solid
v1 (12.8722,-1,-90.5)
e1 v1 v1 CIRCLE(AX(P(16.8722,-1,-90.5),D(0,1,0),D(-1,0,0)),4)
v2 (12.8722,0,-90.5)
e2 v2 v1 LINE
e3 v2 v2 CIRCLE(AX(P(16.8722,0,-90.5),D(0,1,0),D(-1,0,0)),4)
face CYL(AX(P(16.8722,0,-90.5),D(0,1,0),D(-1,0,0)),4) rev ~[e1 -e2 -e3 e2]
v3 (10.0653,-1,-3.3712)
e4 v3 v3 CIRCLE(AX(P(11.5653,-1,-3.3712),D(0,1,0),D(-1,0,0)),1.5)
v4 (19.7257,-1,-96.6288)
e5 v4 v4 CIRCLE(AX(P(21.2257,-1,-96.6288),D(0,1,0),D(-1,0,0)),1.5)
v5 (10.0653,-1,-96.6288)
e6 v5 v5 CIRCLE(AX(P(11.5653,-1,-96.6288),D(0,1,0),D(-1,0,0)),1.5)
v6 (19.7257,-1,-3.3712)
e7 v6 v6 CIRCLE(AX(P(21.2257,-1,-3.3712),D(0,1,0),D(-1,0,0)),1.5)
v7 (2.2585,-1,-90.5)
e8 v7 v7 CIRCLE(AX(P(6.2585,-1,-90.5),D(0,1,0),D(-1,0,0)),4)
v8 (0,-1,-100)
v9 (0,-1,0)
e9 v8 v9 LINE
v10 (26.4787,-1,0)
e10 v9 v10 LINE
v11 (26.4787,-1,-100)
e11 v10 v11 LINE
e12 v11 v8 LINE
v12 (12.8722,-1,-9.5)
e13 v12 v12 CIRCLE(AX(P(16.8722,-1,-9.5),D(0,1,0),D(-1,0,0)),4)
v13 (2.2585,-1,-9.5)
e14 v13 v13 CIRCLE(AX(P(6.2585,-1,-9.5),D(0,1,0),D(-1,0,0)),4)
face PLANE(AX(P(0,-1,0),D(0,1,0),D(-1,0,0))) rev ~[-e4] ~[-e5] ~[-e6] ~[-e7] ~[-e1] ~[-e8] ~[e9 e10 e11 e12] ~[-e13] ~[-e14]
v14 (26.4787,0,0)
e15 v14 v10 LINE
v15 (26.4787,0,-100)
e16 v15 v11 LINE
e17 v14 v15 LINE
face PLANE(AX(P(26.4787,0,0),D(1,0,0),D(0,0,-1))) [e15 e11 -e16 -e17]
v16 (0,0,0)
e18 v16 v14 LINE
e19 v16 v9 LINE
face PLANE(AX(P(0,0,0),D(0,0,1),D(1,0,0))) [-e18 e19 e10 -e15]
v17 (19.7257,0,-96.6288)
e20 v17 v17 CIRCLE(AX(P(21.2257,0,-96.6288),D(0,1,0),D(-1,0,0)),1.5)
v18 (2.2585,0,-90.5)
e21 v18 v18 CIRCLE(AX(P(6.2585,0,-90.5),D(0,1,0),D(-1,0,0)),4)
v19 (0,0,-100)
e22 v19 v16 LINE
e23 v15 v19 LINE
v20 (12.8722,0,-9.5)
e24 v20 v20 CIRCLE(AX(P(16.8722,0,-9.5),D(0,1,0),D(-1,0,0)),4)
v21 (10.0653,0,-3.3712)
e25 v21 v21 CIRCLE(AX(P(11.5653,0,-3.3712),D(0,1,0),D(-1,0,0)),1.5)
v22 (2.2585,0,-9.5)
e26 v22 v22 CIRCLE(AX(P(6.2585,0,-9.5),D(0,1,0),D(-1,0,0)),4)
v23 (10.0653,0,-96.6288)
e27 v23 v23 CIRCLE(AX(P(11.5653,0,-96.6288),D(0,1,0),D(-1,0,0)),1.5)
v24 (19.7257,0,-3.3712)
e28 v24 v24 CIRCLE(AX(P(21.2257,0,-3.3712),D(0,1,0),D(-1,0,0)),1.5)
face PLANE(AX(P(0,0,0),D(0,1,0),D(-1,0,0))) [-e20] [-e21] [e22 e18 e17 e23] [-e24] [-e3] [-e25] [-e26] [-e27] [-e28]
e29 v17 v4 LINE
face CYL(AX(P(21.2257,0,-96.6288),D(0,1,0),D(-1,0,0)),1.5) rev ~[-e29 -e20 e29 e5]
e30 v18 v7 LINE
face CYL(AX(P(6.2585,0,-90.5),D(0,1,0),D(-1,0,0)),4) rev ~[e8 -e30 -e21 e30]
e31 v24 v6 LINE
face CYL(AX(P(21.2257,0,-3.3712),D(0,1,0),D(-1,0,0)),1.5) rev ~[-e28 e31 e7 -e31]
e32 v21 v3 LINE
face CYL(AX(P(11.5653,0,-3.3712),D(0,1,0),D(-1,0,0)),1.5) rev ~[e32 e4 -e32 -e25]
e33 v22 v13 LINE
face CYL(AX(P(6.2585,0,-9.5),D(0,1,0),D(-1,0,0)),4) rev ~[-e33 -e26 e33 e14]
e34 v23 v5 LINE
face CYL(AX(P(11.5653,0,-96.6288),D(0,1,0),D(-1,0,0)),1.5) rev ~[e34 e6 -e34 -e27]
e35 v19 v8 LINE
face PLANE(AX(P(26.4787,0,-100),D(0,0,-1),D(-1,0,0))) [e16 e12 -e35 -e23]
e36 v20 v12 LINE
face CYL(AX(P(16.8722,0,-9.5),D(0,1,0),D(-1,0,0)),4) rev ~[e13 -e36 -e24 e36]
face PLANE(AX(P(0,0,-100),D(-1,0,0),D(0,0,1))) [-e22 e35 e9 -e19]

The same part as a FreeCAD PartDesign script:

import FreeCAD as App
import Part
import Sketcher
from FreeCAD import Vector


def add_polygon(sketch, points):
    """Adds a closed chain of lines whose ends are joined by coincident constraints."""
    first, n = sketch.GeometryCount, len(points)
    for a, b in zip(points, points[1:] + points[:1]):
        sketch.addGeometry(Part.LineSegment(App.Vector(*a, 0), App.Vector(*b, 0)), False)
    for i in range(n):
        sketch.addConstraint(Sketcher.Constraint("Coincident", first + i, 2, first + (i + 1) % n, 1))

doc = App.newDocument("Part")
params = doc.addObject("Spreadsheet::Sheet", "Params")
for row, (alias, value) in enumerate([
    ("sketch1_diameter", "3 mm"),
    ("sketch1_diameter2", "8 mm"),
    ("sketch1_height", "100 mm"),
    ("pad1_length", "1 mm"),
], start=1):
    params.set(f"A{row}", alias)
    params.set(f"B{row}", "=" + value)
    params.setAlias(f"B{row}", alias)

body = doc.addObject("PartDesign::Body", "Body")

# Sketch on XZ plane
sketch1 = doc.addObject("Sketcher::SketchObject", "Sketch")
body.addObject(sketch1)
sketch1.AttachmentSupport = (doc.XZ_Plane, [""])
sketch1.MapMode = "FlatFace"
add_polygon(sketch1, [(26.5, -100), (0, -100), (0, 0), (26.5, 0)])  # lines 0-3
sketch1.addGeometry(Part.Circle(Vector(21.2, -96.6, 0), Vector(0, 0, 1), 1.5), False)  # 4
sketch1.addGeometry(Part.Circle(Vector(16.9, -90.5, 0), Vector(0, 0, 1), 4), False)  # 5
sketch1.addGeometry(Part.Circle(Vector(11.6, -96.6, 0), Vector(0, 0, 1), 1.5), False)  # 6
sketch1.addGeometry(Part.Circle(Vector(6.3, -90.5, 0), Vector(0, 0, 1), 4), False)  # 7
sketch1.addGeometry(Part.Circle(Vector(21.2, -3.4, 0), Vector(0, 0, 1), 1.5), False)  # 8
sketch1.addGeometry(Part.Circle(Vector(16.9, -9.5, 0), Vector(0, 0, 1), 4), False)  # 9
sketch1.addGeometry(Part.Circle(Vector(11.6, -3.4, 0), Vector(0, 0, 1), 1.5), False)  # 10
sketch1.addGeometry(Part.Circle(Vector(6.3, -9.5, 0), Vector(0, 0, 1), 4), False)  # 11
sketch1.addConstraint(Sketcher.Constraint("Horizontal", 0))
sketch1.addConstraint(Sketcher.Constraint("Vertical", 1))
sketch1.addConstraint(Sketcher.Constraint("Horizontal", 2))
sketch1.addConstraint(Sketcher.Constraint("Vertical", 3))
sketch1.addConstraint(Sketcher.Constraint("Coincident", 1, 2, -1, 1))
sketch1.addConstraint(Sketcher.Constraint("Equal", 4, 6))
sketch1.addConstraint(Sketcher.Constraint("Equal", 5, 7))
sketch1.addConstraint(Sketcher.Constraint("Equal", 6, 8))
sketch1.addConstraint(Sketcher.Constraint("Equal", 7, 9))
sketch1.addConstraint(Sketcher.Constraint("Equal", 8, 10))
sketch1.addConstraint(Sketcher.Constraint("Equal", 9, 11))
sketch1.addConstraint(Sketcher.Constraint("Horizontal", 4, 3, 6, 3))
sketch1.addConstraint(Sketcher.Constraint("Horizontal", 5, 3, 7, 3))
sketch1.addConstraint(Sketcher.Constraint("Horizontal", 8, 3, 10, 3))
sketch1.addConstraint(Sketcher.Constraint("Horizontal", 9, 3, 11, 3))
sketch1.addConstraint(Sketcher.Constraint("Vertical", 4, 3, 8, 3))
sketch1.addConstraint(Sketcher.Constraint("Vertical", 5, 3, 9, 3))
sketch1.addConstraint(Sketcher.Constraint("Vertical", 6, 3, 10, 3))
sketch1.addConstraint(Sketcher.Constraint("Vertical", 7, 3, 11, 3))
sketch1.addConstraint(Sketcher.Constraint("Diameter", 4, 3.0))
sketch1.addConstraint(Sketcher.Constraint("Diameter", 5, 8.0))
sketch1.addConstraint(Sketcher.Constraint("DistanceY", 1, 1, 1, 2, 100.0))
sketch1.addConstraint(Sketcher.Constraint("DistanceY", 5, 3, 9, 3, 81.0))
sketch1.addConstraint(Sketcher.Constraint("DistanceY", 5, 3, -1, 1, 90.5))
sketch1.addConstraint(Sketcher.Constraint("DistanceX", 0, 2, 0, 1, 26.4787))
sketch1.addConstraint(Sketcher.Constraint("DistanceX", 6, 3, 5, 3, 5.307))
sketch1.addConstraint(Sketcher.Constraint("DistanceX", 8, 3, 2, 2, 5.253))
sketch1.addConstraint(Sketcher.Constraint("DistanceY", 4, 3, -1, 1, 96.6288))
sketch1.addConstraint(Sketcher.Constraint("DistanceX", -1, 1, 5, 3, 16.8722))
sketch1.addConstraint(Sketcher.Constraint("DistanceX", -1, 1, 7, 3, 6.2585))
sketch1.addConstraint(Sketcher.Constraint("DistanceY", 8, 3, -1, 1, 3.3712))
sketch1.setExpression("Constraints[23]", "Params.sketch1_diameter")
sketch1.setExpression("Constraints[24]", "Params.sketch1_diameter2")
sketch1.setExpression("Constraints[25]", "Params.sketch1_height")
pad1 = doc.addObject("PartDesign::Pad", "Pad")
body.addObject(pad1)
pad1.Profile = sketch1
pad1.setExpression("Length", "Params.pad1_length")

doc.recompute()
